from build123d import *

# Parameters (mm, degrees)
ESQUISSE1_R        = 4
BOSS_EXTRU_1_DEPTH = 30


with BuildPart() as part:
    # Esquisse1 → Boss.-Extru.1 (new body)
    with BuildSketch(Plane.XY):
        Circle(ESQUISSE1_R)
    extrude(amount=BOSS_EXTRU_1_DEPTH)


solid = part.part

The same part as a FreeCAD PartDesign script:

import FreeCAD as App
import Part
import Sketcher
from FreeCAD import Vector
Q = App.Units.Quantity

doc = App.newDocument("Part")
body = doc.addObject("PartDesign::Body", "Body")

# Sketch on XY plane
sketch1 = doc.addObject("Sketcher::SketchObject", "Sketch")
body.addObject(sketch1)
sketch1.AttachmentSupport = (doc.XY_Plane, [""])
sketch1.MapMode = "FlatFace"
sketch1.addGeometry(Part.Circle(Vector(0, 0, 0), Vector(0, 0, 1), 4), False)
sketch1.addConstraint(Sketcher.Constraint("Coincident", 0, 3, -1, 1))
sketch1.addConstraint(Sketcher.Constraint("Diameter", 0, Q("8 mm")))
pad1 = doc.addObject("PartDesign::Pad", "Pad")
body.addObject(pad1)
pad1.Profile = sketch1
pad1.Length = 30

doc.recompute()
